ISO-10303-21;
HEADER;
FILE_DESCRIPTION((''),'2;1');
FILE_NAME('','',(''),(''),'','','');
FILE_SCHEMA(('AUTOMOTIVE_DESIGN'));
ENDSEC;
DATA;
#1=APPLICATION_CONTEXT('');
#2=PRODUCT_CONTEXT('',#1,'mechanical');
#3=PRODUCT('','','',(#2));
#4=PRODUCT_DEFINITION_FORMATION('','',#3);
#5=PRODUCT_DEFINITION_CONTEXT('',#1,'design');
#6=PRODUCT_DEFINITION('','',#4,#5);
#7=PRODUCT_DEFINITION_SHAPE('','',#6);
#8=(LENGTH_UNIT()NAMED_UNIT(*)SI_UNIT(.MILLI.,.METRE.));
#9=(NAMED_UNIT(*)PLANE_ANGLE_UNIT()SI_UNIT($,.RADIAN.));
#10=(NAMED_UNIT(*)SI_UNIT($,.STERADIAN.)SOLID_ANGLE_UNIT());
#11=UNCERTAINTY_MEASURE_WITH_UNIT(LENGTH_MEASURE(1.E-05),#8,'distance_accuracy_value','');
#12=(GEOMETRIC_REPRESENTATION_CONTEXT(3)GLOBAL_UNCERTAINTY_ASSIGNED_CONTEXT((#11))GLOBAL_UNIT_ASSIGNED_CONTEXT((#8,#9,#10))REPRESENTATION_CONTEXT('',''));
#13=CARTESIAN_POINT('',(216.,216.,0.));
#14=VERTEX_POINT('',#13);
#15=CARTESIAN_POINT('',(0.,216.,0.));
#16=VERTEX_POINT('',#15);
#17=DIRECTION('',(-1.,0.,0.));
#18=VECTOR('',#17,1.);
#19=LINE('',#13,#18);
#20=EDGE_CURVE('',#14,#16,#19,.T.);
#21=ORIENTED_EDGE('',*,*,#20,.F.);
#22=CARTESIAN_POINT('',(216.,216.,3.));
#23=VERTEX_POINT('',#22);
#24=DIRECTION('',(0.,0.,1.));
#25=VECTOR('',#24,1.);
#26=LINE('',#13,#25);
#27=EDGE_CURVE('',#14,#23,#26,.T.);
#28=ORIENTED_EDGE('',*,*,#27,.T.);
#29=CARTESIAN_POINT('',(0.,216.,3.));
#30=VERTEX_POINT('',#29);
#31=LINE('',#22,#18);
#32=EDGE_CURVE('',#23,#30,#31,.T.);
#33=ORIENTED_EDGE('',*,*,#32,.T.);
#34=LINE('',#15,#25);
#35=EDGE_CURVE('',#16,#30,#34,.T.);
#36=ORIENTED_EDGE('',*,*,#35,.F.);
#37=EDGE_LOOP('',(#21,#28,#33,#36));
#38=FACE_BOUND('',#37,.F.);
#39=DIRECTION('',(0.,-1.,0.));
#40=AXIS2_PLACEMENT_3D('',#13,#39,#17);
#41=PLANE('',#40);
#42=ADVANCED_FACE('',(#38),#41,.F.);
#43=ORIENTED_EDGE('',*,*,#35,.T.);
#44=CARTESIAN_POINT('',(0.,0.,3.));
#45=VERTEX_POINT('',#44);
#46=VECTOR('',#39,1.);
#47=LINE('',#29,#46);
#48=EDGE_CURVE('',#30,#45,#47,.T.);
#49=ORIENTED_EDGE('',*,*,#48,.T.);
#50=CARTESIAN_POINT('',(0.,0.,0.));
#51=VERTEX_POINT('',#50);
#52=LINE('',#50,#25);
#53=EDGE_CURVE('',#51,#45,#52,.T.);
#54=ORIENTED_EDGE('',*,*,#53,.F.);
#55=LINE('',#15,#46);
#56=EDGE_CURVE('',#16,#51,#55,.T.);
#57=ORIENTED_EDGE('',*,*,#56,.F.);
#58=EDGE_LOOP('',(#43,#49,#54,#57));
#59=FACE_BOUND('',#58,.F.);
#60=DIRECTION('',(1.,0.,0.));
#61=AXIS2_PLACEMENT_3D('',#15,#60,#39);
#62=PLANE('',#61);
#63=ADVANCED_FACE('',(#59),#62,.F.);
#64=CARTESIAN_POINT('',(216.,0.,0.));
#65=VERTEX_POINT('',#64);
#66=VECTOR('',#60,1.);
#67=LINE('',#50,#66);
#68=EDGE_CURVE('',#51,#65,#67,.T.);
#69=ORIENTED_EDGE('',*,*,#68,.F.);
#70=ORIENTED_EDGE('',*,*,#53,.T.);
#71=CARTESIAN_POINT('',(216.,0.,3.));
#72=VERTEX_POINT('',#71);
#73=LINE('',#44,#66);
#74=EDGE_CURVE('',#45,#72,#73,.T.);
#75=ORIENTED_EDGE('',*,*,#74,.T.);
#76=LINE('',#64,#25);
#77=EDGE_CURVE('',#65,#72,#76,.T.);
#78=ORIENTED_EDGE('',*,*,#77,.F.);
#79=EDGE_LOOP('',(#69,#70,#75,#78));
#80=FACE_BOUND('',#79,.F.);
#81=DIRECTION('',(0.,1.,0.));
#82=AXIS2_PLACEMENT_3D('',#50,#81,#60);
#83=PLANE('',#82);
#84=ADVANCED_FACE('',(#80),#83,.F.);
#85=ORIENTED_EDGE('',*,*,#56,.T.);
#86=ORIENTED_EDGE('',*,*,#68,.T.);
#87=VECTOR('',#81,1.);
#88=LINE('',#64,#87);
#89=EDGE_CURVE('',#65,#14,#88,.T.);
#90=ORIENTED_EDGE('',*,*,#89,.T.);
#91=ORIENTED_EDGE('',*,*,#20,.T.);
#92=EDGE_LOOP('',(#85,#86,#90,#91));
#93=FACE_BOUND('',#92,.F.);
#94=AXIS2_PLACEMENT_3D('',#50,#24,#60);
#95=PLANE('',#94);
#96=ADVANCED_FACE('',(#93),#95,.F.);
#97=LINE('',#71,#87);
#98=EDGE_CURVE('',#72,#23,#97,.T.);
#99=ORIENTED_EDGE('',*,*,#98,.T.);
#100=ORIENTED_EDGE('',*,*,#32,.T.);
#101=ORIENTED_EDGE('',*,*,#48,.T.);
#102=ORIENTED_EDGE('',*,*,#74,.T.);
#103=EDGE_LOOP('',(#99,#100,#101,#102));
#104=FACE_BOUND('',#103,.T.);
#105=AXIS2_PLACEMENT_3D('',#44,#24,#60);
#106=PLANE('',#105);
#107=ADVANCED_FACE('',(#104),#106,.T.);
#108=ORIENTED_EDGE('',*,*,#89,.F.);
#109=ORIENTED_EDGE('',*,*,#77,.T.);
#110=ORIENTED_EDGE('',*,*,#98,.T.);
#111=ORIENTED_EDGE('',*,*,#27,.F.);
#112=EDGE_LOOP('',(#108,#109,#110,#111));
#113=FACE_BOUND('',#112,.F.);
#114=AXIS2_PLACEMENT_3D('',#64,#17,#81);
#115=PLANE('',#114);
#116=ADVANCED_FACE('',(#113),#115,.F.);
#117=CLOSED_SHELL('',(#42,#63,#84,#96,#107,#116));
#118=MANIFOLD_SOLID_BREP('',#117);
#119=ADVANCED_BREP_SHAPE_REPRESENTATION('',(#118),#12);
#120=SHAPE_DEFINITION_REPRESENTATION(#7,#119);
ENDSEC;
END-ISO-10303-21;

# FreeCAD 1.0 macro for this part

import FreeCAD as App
import Part
import Sketcher

doc = App.newDocument("Part")
body = doc.addObject("PartDesign::Body", "Body")

sketch1 = body.newObject("Sketcher::SketchObject", "Sketch")
sketch1.AttachmentSupport = (doc.getObject("XY_Plane"), [""])
sketch1.MapMode = "FlatFace"
sketch1.addGeometry(Part.LineSegment(App.Vector(0, 216, 0), App.Vector(0, 0, 0)), False)
sketch1.addGeometry(Part.LineSegment(App.Vector(0, 0, 0), App.Vector(216, 0, 0)), False)
sketch1.addGeometry(Part.LineSegment(App.Vector(216, 0, 0), App.Vector(216, 216, 0)), False)
sketch1.addGeometry(Part.LineSegment(App.Vector(216, 216, 0), App.Vector(0, 216, 0)), False)
sketch1.addConstraint(Sketcher.Constraint("Coincident", 0, 2, 1, 1))
sketch1.addConstraint(Sketcher.Constraint("Coincident", 1, 2, 2, 1))
sketch1.addConstraint(Sketcher.Constraint("Coincident", 2, 2, 3, 1))
sketch1.addConstraint(Sketcher.Constraint("Coincident", 3, 2, 0, 1))
sketch1.addConstraint(Sketcher.Constraint("Vertical", 0))
sketch1.addConstraint(Sketcher.Constraint("Horizontal", 1))
sketch1.addConstraint(Sketcher.Constraint("Vertical", 2))
sketch1.addConstraint(Sketcher.Constraint("Horizontal", 3))
sketch1.addConstraint(Sketcher.Constraint("Coincident", 0, 2, -1, 1))
sketch1.addConstraint(Sketcher.Constraint("Equal", 3, 0))
sketch1.addConstraint(Sketcher.Constraint("DistanceX", 1, 1, 1, 2, 216.0))
pad1 = body.newObject("PartDesign::Pad", "Pad")
pad1.Profile = sketch1
pad1.Length = 3

doc.recompute()
